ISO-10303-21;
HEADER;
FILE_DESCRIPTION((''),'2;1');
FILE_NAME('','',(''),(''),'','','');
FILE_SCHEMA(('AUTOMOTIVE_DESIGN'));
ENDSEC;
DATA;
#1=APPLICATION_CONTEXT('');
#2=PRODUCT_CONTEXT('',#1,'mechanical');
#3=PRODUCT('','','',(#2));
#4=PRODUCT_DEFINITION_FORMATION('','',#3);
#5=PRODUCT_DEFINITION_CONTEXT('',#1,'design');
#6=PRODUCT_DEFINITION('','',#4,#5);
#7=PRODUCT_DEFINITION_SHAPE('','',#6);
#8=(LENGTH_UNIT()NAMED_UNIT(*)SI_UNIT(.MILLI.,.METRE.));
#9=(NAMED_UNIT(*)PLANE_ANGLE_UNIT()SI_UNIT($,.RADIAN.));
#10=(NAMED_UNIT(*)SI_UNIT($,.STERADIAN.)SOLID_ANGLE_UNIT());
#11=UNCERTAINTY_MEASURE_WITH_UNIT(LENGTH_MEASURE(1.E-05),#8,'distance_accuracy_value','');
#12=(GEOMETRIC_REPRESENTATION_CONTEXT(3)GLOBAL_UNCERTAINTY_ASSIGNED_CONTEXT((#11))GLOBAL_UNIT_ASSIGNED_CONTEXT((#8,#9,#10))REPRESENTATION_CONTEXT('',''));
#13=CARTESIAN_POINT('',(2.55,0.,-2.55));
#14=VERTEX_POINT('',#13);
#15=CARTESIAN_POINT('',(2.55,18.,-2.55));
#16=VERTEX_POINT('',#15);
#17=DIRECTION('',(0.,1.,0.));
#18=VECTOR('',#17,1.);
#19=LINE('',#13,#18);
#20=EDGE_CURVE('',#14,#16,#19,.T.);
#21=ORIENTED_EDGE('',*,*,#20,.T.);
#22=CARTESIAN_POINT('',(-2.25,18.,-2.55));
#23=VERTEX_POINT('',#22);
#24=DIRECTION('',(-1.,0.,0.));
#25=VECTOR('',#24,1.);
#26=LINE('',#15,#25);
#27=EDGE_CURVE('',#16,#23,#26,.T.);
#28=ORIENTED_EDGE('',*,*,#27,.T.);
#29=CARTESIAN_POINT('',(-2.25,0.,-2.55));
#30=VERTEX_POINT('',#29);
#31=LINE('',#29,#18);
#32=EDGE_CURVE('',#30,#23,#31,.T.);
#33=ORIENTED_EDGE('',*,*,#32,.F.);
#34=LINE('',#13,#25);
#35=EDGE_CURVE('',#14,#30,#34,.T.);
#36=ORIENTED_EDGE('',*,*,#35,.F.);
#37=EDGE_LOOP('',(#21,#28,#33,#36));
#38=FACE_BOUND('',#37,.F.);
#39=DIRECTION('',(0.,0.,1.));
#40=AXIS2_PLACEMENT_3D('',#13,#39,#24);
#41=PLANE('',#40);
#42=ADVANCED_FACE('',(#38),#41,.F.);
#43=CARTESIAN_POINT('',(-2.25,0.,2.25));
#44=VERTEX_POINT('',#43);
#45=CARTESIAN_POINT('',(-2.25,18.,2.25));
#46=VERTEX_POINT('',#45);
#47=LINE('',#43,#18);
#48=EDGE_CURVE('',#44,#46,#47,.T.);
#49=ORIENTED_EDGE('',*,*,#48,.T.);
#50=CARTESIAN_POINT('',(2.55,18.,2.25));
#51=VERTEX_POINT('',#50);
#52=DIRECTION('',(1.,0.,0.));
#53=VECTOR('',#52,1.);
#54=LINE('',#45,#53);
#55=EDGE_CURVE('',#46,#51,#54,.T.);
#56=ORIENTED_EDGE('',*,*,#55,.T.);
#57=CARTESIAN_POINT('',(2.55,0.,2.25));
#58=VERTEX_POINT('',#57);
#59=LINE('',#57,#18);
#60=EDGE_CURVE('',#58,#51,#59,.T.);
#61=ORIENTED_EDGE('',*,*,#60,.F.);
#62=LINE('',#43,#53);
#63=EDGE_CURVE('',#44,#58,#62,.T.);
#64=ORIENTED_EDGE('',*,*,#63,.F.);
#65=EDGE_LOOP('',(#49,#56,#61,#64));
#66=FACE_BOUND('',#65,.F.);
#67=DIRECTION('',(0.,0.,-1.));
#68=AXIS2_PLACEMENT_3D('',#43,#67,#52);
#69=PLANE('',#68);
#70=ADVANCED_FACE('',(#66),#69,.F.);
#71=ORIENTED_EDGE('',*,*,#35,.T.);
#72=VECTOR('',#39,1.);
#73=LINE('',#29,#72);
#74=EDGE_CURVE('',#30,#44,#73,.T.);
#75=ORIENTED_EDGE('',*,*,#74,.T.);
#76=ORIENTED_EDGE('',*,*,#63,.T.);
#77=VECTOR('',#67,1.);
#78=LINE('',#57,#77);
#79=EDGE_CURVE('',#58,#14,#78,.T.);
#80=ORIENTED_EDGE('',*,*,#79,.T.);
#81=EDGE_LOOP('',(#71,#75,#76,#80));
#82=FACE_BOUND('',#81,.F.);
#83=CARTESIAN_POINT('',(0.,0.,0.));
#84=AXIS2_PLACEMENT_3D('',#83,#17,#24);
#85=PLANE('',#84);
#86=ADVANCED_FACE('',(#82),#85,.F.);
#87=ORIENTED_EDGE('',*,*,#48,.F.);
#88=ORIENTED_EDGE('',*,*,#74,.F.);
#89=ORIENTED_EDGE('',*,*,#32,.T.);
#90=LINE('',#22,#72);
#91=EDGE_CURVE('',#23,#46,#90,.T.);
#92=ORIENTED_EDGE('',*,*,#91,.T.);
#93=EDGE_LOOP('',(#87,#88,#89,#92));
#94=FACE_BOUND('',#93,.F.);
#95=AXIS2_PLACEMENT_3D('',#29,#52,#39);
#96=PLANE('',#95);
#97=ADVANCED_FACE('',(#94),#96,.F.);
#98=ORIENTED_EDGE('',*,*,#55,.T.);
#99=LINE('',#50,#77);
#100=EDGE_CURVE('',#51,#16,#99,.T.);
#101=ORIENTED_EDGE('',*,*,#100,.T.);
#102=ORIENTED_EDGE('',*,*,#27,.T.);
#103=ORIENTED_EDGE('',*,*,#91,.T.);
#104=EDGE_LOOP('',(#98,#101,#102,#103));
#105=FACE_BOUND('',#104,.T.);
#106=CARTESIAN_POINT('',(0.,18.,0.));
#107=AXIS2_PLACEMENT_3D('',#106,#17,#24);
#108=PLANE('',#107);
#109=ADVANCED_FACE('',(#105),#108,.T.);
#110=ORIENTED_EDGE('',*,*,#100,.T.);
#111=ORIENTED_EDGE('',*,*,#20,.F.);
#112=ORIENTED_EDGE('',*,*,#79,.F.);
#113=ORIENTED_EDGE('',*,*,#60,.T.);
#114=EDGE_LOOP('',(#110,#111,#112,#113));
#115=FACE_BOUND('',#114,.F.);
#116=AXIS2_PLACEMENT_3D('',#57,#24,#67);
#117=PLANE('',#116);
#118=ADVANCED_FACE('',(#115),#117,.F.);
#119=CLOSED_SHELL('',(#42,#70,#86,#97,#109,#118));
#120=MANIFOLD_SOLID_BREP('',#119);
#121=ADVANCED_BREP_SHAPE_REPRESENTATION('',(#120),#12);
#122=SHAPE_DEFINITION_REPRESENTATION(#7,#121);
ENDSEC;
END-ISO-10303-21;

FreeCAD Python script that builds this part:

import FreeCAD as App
import Part
import Sketcher

V = App.Vector
Q = App.Units.Quantity


def add_polygon(sketch, points):
    """Adds a closed chain of lines whose ends are joined by coincident constraints."""
    first, n = sketch.GeometryCount, len(points)
    for a, b in zip(points, points[1:] + points[:1]):
        sketch.addGeometry(Part.LineSegment(App.Vector(*a, 0), App.Vector(*b, 0)), False)
    for i in range(n):
        sketch.addConstraint(Sketcher.Constraint("Coincident", first + i, 2, first + (i + 1) % n, 1))

doc = App.newDocument("Part")
body = doc.addObject("PartDesign::Body", "Body")

sketch1 = doc.addObject("Sketcher::SketchObject", "Sketch")
body.addObject(sketch1)
sketch1.AttachmentSupport = (doc.XZ_Plane, [""])
sketch1.MapMode = "FlatFace"
add_polygon(sketch1, [(-2.2, -2.5), (-2.2, 2.2), (2.5, 2.2), (2.5, -2.5)])
sketch1.addConstraint(Sketcher.Constraint("Vertical", 0))
sketch1.addConstraint(Sketcher.Constraint("Horizontal", 1))
sketch1.addConstraint(Sketcher.Constraint("Vertical", 2))
sketch1.addConstraint(Sketcher.Constraint("Horizontal", 3))
sketch1.addConstraint(Sketcher.Constraint("Equal", 3, 0))
sketch1.addConstraint(Sketcher.Constraint("DistanceX", 1, 1, 1, 2, Q("4.8 mm")))
sketch1.addConstraint(Sketcher.Constraint("DistanceX", 0, 2, -1, 1, Q("2.25 mm")))
sketch1.addConstraint(Sketcher.Constraint("DistanceY", -1, 1, 0, 2, Q("2.25 mm")))
pad1 = doc.addObject("PartDesign::Pad", "Pad")
body.addObject(pad1)
pad1.Profile = sketch1
pad1.Length = 18
pad1.Reversed = True

doc.recompute()
